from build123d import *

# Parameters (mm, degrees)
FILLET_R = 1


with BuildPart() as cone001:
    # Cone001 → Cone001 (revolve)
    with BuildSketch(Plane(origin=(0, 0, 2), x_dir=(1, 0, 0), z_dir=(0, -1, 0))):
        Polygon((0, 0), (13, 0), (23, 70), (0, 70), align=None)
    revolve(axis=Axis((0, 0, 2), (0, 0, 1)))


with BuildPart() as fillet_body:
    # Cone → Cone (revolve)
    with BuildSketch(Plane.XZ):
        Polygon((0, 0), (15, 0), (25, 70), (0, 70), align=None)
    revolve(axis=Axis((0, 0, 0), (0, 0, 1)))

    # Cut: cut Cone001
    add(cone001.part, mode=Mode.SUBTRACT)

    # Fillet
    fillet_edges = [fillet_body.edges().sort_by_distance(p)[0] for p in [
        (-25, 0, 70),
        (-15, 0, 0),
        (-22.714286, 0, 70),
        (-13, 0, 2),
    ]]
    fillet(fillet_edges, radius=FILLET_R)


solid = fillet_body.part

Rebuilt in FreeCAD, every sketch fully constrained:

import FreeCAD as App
import Part
import Sketcher

V = App.Vector
Q = App.Units.Quantity


def edges_at(feature, points):
    """Names of the edges that pass closest to the given points."""
    edges = feature.Shape.Edges
    near = lambda p: min(range(len(edges)), key=lambda i: edges[i].distToShape(Part.Vertex(*p))[0])
    return sorted({f"Edge{near(p) + 1}" for p in points})


def add_polygon(sketch, points):
    """Adds a closed chain of lines whose ends are joined by coincident constraints."""
    first, n = sketch.GeometryCount, len(points)
    for a, b in zip(points, points[1:] + points[:1]):
        sketch.addGeometry(Part.LineSegment(App.Vector(*a, 0), App.Vector(*b, 0)), False)
    for i in range(n):
        sketch.addConstraint(Sketcher.Constraint("Coincident", first + i, 2, first + (i + 1) % n, 1))

doc = App.newDocument("Part")
body = doc.addObject("PartDesign::Body", "Body")

# Sketch on XZ plane
sketch1 = body.newObject("Sketcher::SketchObject", "Sketch")
sketch1.AttachmentSupport = (doc.getObject("XZ_Plane"), [""])
sketch1.MapMode = "FlatFace"
add_polygon(sketch1, [(0, 2), (13, 2), (23, 72), (0, 72)])  # lines 0-3
sketch1.addConstraint([
    Sketcher.Constraint("Horizontal", 0),
    Sketcher.Constraint("Horizontal", 2),
    Sketcher.Constraint("Vertical", 3),
    Sketcher.Constraint("PointOnObject", 2, 2, -2),
    Sketcher.Constraint("DistanceX", 0, 1, 0, 2, Q("13 mm")),
    Sketcher.Constraint("DistanceX", 2, 2, 2, 1, Q("23 mm")),
    Sketcher.Constraint("DistanceY", 3, 2, 3, 1, Q("70 mm")),
    Sketcher.Constraint("DistanceY", -1, 1, 0, 2, Q("2 mm")),
])
revolution = body.newObject("PartDesign::Revolution", "Revolution")
revolution.Profile = sketch1
revolution.ReferenceAxis = (sketch1, ["V_Axis"])
revolution.Angle = 360
body2 = doc.addObject("PartDesign::Body", "Body001")

# Sketch on XZ plane
sketch2 = body2.newObject("Sketcher::SketchObject", "Sketch001")
sketch2.AttachmentSupport = (doc.getObject("XZ_Plane001"), [""])
sketch2.MapMode = "FlatFace"
add_polygon(sketch2, [(0, 0), (15, 0), (25, 70), (0, 70)])  # lines 0-3
sketch2.addConstraint([
    Sketcher.Constraint("Horizontal", 0),
    Sketcher.Constraint("Horizontal", 2),
    Sketcher.Constraint("Vertical", 3),
    Sketcher.Constraint("Coincident", 3, 2, -1, 1),
    Sketcher.Constraint("DistanceX", 0, 1, 0, 2, Q("15 mm")),
    Sketcher.Constraint("DistanceX", 2, 2, 2, 1, Q("25 mm")),
    Sketcher.Constraint("DistanceY", 3, 2, 3, 1, Q("70 mm")),
])
revolution2 = body2.newObject("PartDesign::Revolution", "Revolution001")
revolution2.Profile = sketch2
revolution2.ReferenceAxis = (sketch2, ["V_Axis"])
revolution2.Angle = 360
doc.recompute()

boolean = body2.newObject("PartDesign::Boolean", "Boolean")
boolean.Type = "Cut"
boolean.addObjects([body])
doc.recompute()

fillet = body2.newObject("PartDesign::Fillet", "Fillet")
fillet.Base = (boolean, edges_at(boolean, [
    (-25, 0, 70),
    (-15, 0, 0),
    (-22.714, 0, 70),
    (-13, 0, 2),
]))
fillet.Radius = 1

doc.recompute()
